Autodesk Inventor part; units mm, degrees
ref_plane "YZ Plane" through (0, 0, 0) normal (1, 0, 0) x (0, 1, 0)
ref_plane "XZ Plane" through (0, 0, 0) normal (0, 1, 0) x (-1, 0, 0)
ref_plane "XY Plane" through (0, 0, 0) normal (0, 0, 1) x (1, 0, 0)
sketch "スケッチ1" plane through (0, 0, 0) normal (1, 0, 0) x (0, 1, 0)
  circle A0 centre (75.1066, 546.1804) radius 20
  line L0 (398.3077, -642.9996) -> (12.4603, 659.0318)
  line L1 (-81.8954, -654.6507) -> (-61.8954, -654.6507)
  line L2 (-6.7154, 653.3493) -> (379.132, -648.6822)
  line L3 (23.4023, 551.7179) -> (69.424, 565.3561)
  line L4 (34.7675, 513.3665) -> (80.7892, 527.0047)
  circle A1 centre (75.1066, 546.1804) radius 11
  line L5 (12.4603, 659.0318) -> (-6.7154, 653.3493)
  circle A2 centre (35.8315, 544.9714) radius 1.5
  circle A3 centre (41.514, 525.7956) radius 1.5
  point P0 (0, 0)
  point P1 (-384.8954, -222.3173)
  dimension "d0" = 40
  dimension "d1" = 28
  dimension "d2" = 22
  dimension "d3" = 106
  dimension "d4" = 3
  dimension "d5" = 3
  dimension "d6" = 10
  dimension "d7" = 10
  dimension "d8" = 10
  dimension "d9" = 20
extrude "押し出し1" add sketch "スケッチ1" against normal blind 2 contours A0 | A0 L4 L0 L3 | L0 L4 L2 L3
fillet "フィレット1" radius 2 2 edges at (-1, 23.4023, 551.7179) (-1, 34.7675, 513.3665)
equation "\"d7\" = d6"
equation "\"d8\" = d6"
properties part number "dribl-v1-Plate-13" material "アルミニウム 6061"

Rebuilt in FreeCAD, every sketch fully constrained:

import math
import FreeCAD as App
import Part
import Sketcher


def edges_at(feature, points):
    """Names of the edges that pass closest to the given points."""
    edges = feature.Shape.Edges
    near = lambda p: min(range(len(edges)), key=lambda i: edges[i].distToShape(Part.Vertex(*p))[0])
    return sorted({f"Edge{near(p) + 1}" for p in points})

doc = App.newDocument("Part")
params = doc.addObject("Spreadsheet::Sheet", "Params")
for row, (alias, value) in enumerate([
    ("sketch1_diameter", "22 mm"),
    ("sketch1_diameter2", "3 mm"),
    ("sketch1_radius", "20 mm"),
    ("sketch1_length", "48 mm"),
    ("pad1_length", "2 mm"),
    ("fillet_radius", "2 mm"),
], start=1):
    params.set(f"A{row}", alias)
    params.set(f"B{row}", "=" + value)
    params.setAlias(f"B{row}", alias)

body = doc.addObject("PartDesign::Body", "Body")

# Sketch on YZ plane
sketch1 = body.newObject("Sketcher::SketchObject", "Sketch")
sketch1.AttachmentSupport = (doc.getObject("YZ_Plane"), [""])
sketch1.MapMode = "FlatFace"
sketch1.addGeometry(Part.ArcOfCircle(Part.Circle(App.Vector(75.1, 546.2, 0), App.Vector(0, 0, 1), 20), math.radians(-73), math.radians(107)), False)
sketch1.addGeometry(Part.LineSegment(App.Vector(69.4, 565.4, 0), App.Vector(23.4, 551.7, 0)), False)
sketch1.addGeometry(Part.LineSegment(App.Vector(23.4, 551.7, 0), App.Vector(34.8, 513.4, 0)), False)
sketch1.addGeometry(Part.LineSegment(App.Vector(34.8, 513.4, 0), App.Vector(80.8, 527, 0)), False)
sketch1.addGeometry(Part.Circle(App.Vector(75.1, 546.2, 0), App.Vector(0, 0, 1), 11), False)
sketch1.addGeometry(Part.Circle(App.Vector(35.8, 545, 0), App.Vector(0, 0, 1), 1.5), False)
sketch1.addGeometry(Part.Circle(App.Vector(41.5, 525.8, 0), App.Vector(0, 0, 1), 1.5), False)
sketch1.addConstraint(Sketcher.Constraint("Tangent", 0, 2, 1, 1))
sketch1.addConstraint(Sketcher.Constraint("Coincident", 1, 2, 2, 1))
sketch1.addConstraint(Sketcher.Constraint("Coincident", 2, 2, 3, 1))
sketch1.addConstraint(Sketcher.Constraint("Tangent", 3, 2, 0, 1))
sketch1.addConstraint(Sketcher.Constraint("Coincident", 4, 3, 0, 3))
sketch1.addConstraint(Sketcher.Constraint("Equal", 5, 6))
sketch1.addConstraint(Sketcher.Constraint("Perpendicular", 1, 2))
sketch1.addConstraint(Sketcher.Constraint("Perpendicular", 2, 3))
sketch1.addConstraint(Sketcher.Constraint("Diameter", 4, 22.0))
sketch1.addConstraint(Sketcher.Constraint("Diameter", 5, 3.0))
sketch1.addConstraint(Sketcher.Constraint("Radius", 0, 20.0))
sketch1.addConstraint(Sketcher.Constraint("Distance", 1, 48.0))
sketch1.addConstraint(Sketcher.Constraint("DistanceX", 6, 3, 0, 2, 27.91))
sketch1.addConstraint(Sketcher.Constraint("DistanceX", -1, 1, 6, 3, 41.514))
sketch1.addConstraint(Sketcher.Constraint("DistanceY", -1, 1, 0, 2, 565.356))
sketch1.addConstraint(Sketcher.Constraint("DistanceY", -1, 1, 1, 2, 551.718))
sketch1.addConstraint(Sketcher.Constraint("DistanceX", 5, 3, 0, 3, 39.275))
sketch1.addConstraint(Sketcher.Constraint("DistanceY", 5, 3, 0, 3, 1.209))
sketch1.addConstraint(Sketcher.Constraint("DistanceY", 2, 2, 6, 3, 12.429))
sketch1.setExpression("Constraints[8]", "Params.sketch1_diameter")
sketch1.setExpression("Constraints[9]", "Params.sketch1_diameter2")
sketch1.setExpression("Constraints[10]", "Params.sketch1_radius")
sketch1.setExpression("Constraints[11]", "Params.sketch1_length")
pad1 = body.newObject("PartDesign::Pad", "Pad")
pad1.Profile = sketch1
pad1.setExpression("Length", "Params.pad1_length")
pad1.Reversed = True
doc.recompute()

fillet = body.newObject("PartDesign::Fillet", "Fillet")
fillet.Base = (pad1, edges_at(pad1, [(-1, 23.402, 551.718), (-1, 34.767, 513.366)]))
fillet.setExpression("Radius", "Params.fillet_radius")

doc.recompute()
